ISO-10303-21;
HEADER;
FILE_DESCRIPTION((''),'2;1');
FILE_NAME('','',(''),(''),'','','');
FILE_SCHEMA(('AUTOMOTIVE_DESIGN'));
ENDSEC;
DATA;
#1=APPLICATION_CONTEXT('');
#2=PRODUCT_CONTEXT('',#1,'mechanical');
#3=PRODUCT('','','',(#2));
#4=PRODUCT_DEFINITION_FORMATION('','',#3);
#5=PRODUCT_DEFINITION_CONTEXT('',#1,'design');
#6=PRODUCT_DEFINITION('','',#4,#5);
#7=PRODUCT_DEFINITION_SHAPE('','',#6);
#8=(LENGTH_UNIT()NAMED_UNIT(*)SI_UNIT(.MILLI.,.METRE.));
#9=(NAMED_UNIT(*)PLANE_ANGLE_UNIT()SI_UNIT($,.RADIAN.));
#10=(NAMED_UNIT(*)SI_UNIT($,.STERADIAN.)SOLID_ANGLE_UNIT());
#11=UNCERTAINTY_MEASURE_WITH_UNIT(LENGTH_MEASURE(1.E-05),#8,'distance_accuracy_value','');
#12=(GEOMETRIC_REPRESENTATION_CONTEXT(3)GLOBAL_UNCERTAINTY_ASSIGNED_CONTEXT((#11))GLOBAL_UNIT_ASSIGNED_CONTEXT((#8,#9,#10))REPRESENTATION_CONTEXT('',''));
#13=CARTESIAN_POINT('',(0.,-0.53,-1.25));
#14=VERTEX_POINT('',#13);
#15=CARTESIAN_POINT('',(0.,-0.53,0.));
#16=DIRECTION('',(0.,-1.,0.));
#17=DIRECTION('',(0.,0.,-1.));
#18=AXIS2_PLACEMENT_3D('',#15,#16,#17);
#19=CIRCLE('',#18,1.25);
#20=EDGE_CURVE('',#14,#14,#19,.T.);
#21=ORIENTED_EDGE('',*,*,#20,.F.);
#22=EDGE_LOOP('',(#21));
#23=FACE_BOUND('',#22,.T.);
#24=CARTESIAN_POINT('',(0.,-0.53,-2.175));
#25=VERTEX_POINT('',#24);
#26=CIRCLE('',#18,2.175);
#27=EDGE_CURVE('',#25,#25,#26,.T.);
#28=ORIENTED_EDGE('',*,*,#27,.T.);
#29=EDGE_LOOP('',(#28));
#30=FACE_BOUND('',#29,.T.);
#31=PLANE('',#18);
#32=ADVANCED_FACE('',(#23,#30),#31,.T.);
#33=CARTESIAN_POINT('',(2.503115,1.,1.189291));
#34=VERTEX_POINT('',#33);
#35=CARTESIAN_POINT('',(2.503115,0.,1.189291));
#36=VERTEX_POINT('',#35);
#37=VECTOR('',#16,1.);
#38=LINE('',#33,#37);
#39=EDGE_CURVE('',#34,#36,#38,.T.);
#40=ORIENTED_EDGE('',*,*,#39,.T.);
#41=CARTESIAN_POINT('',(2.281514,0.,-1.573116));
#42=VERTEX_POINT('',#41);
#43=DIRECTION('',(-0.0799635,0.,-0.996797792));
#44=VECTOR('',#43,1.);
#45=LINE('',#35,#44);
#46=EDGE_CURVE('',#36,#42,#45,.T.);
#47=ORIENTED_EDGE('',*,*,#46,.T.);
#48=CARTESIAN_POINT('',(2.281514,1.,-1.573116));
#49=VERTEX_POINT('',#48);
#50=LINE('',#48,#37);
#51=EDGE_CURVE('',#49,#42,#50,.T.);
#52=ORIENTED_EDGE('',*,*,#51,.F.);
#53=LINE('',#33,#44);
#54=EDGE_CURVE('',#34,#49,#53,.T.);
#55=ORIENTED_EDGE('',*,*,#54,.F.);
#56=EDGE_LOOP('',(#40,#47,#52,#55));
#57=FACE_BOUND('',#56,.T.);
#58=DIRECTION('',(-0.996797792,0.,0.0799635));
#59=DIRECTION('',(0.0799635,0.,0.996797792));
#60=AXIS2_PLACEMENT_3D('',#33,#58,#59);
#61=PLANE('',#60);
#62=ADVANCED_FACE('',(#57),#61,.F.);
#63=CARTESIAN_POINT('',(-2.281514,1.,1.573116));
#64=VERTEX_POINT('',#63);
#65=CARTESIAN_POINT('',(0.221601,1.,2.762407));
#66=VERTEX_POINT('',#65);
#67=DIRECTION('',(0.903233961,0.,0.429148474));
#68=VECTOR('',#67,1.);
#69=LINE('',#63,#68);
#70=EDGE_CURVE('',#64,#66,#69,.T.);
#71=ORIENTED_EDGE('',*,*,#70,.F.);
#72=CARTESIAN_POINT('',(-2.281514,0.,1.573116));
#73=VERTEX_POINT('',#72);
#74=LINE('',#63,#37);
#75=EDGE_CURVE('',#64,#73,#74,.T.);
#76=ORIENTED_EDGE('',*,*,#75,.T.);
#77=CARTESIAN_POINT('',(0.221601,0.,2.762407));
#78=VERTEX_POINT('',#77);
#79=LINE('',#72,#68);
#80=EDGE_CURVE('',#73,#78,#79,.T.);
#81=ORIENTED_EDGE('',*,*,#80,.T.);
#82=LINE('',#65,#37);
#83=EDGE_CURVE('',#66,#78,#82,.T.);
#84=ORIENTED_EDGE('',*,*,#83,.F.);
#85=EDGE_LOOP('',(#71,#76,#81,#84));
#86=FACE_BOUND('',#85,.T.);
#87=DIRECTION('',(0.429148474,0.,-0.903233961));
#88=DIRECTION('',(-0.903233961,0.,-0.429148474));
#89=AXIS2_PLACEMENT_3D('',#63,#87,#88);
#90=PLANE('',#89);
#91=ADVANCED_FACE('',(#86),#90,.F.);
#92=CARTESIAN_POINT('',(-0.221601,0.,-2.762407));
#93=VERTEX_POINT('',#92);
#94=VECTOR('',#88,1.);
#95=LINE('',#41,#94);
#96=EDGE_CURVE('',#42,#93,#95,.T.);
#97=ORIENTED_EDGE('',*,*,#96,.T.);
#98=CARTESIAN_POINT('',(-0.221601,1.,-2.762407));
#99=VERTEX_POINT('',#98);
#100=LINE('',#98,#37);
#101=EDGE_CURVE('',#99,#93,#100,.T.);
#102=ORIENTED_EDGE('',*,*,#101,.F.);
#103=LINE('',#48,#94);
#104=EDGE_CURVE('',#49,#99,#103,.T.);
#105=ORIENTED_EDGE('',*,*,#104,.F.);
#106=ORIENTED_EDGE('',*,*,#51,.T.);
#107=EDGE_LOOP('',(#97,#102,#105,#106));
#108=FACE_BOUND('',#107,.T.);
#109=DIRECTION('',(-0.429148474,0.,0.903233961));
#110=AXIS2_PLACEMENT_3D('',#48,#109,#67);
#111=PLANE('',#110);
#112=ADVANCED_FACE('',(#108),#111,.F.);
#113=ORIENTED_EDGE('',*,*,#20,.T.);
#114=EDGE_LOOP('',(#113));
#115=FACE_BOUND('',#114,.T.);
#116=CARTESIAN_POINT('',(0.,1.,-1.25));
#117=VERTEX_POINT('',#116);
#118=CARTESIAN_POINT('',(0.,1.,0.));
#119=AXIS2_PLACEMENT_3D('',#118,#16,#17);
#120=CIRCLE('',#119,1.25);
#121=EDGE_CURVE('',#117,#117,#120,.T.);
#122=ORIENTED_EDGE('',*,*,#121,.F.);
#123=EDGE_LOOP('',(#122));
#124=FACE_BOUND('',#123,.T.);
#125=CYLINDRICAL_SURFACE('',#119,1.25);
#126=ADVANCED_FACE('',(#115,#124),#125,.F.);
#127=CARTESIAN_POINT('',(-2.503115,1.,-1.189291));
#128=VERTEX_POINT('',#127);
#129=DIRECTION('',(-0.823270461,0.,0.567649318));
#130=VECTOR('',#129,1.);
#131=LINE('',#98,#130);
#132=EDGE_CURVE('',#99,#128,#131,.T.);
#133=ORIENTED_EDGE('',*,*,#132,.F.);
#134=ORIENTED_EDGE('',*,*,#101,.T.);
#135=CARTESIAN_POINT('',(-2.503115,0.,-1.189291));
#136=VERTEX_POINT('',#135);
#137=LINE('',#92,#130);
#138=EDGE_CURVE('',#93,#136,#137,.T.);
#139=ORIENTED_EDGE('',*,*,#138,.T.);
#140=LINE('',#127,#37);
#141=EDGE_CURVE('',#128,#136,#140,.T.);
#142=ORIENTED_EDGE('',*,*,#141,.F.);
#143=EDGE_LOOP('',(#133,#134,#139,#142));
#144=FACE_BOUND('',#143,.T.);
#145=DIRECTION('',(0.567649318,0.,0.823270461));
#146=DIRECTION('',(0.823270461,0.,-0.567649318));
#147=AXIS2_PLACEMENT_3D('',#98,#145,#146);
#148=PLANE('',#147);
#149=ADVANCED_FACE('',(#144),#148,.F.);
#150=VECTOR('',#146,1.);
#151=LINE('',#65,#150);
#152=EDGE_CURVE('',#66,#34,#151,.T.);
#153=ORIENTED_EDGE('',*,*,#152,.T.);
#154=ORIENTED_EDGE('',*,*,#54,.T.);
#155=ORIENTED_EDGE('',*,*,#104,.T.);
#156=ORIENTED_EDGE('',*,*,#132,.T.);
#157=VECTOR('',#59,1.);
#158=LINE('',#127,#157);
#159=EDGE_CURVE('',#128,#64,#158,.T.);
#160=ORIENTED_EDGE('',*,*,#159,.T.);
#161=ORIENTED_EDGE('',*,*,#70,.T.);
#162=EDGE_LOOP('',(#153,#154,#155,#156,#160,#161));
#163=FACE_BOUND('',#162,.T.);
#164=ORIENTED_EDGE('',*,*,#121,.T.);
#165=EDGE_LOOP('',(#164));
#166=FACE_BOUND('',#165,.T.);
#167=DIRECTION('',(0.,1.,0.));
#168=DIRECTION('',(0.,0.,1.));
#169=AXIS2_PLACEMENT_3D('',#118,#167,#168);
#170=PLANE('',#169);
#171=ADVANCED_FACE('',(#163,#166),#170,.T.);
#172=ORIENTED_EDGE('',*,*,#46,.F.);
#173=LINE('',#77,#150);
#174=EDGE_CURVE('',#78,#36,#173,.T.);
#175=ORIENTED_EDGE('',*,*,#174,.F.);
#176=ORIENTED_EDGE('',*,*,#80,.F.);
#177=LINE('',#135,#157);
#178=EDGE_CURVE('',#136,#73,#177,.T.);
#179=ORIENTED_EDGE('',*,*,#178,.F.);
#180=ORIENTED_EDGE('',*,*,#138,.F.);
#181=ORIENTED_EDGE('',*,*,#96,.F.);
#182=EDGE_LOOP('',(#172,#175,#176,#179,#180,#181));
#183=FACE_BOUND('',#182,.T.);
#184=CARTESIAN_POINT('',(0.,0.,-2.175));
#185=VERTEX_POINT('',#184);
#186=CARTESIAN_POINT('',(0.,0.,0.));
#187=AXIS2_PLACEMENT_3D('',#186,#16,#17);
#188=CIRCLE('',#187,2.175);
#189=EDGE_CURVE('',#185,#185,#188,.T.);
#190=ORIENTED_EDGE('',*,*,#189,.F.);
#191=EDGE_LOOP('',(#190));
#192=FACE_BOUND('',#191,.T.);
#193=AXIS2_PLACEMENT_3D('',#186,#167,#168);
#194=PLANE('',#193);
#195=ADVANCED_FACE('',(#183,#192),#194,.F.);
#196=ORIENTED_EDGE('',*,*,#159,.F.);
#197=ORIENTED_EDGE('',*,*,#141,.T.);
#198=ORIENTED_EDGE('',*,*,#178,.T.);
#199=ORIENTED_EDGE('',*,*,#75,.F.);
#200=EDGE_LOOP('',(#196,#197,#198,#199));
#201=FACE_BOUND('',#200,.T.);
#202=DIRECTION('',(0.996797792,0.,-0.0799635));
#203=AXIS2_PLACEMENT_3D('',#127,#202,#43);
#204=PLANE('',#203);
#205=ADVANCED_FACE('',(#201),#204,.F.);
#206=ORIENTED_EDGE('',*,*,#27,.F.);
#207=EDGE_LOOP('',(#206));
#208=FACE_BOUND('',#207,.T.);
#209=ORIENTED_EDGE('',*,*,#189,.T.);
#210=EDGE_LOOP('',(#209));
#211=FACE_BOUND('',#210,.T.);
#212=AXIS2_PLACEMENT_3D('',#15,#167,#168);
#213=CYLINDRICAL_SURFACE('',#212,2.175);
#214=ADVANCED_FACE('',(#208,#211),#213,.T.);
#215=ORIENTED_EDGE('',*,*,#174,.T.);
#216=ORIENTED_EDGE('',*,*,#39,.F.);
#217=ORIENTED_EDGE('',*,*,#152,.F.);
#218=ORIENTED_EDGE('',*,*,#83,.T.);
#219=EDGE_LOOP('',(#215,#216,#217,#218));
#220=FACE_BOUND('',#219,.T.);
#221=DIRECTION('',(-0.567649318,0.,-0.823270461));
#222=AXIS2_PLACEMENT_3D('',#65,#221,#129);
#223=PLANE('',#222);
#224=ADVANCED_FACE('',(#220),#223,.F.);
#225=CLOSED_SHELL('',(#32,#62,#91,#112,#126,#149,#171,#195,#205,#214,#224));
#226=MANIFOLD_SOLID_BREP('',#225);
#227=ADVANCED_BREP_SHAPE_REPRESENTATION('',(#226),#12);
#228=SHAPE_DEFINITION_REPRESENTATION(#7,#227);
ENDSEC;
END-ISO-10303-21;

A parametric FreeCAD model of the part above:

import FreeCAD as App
import Part
import Sketcher

V = App.Vector
Q = App.Units.Quantity

doc = App.newDocument("Part")
body = doc.addObject("PartDesign::Body", "Body")

# Sketch on XZ plane
sketch1 = doc.addObject("Sketcher::SketchObject", "Sketch")
body.addObject(sketch1)
sketch1.AttachmentSupport = (doc.XZ_Plane, [""])
sketch1.MapMode = "FlatFace"
sketch1.addGeometry([
    Part.LineSegment(V(2.5, 1.2, 0), V(2.3, -1.6, 0)),  # 0
    Part.LineSegment(V(2.3, -1.6, 0), V(-0.2, -2.8, 0)),  # 1
    Part.LineSegment(V(-0.2, -2.8, 0), V(-2.5, -1.2, 0)),  # 2
    Part.LineSegment(V(-2.5, -1.2, 0), V(-2.3, 1.6, 0)),  # 3
    Part.LineSegment(V(-2.3, 1.6, 0), V(0.2, 2.8, 0)),  # 4
    Part.LineSegment(V(0.2, 2.8, 0), V(2.5, 1.2, 0)),  # 5
], False)
sketch1.addConstraint([
    Sketcher.Constraint("Coincident", 0, 2, 1, 1),
    Sketcher.Constraint("Coincident", 1, 2, 2, 1),
    Sketcher.Constraint("Coincident", 2, 2, 3, 1),
    Sketcher.Constraint("Coincident", 3, 2, 4, 1),
    Sketcher.Constraint("Coincident", 4, 2, 5, 1),
    Sketcher.Constraint("Coincident", 5, 2, 0, 1),
    Sketcher.Constraint("Symmetric", 0, 2, 3, 2, -1, 1),
    Sketcher.Constraint("Symmetric", 1, 2, 4, 2, -1, 1),
    Sketcher.Constraint("Symmetric", 2, 2, 5, 2, -1, 1),
    Sketcher.Constraint("Equal", 0, 1),
    Sketcher.Constraint("Equal", 1, 2),
    Sketcher.Constraint("DistanceX", 1, 2, -1, 1, Q("0.221601 mm")),
    Sketcher.Constraint("DistanceX", 2, 2, 3, 2, Q("0.221601 mm")),
    Sketcher.Constraint("DistanceY", 2, 2, 4, 2, Q("3.951698 mm")),
    Sketcher.Constraint("Distance", 0, Q("2.771281 mm")),
])
pad1 = doc.addObject("PartDesign::Pad", "Pad")
body.addObject(pad1)
pad1.Profile = sketch1
pad1.Length = 1
pad1.Reversed = True

# Sketch on XZ plane
sketch2 = doc.addObject("Sketcher::SketchObject", "Sketch001")
body.addObject(sketch2)
sketch2.AttachmentSupport = (doc.XZ_Plane, [""])
sketch2.MapMode = "FlatFace"
sketch2.addGeometry(Part.Circle(V(0, 0, 0), V(0, 0, 1), 2.2), False)
sketch2.addConstraint([
    Sketcher.Constraint("Coincident", 0, 3, -1, 1),
    Sketcher.Constraint("Diameter", 0, Q("4.35 mm")),
])
pad2 = doc.addObject("PartDesign::Pad", "Pad001")
body.addObject(pad2)
pad2.Profile = sketch2
pad2.Length = 0.53

# Sketch on XZ plane
sketch3 = doc.addObject("Sketcher::SketchObject", "Sketch002")
body.addObject(sketch3)
sketch3.AttachmentSupport = (doc.XZ_Plane, [""])
sketch3.MapMode = "FlatFace"
sketch3.AttachmentOffset = App.Placement(V(0, 0, 0.53), App.Rotation())
sketch3.addGeometry(Part.Circle(V(0, 0, 0), V(0, 0, 1), 1.2), False)
sketch3.addConstraint([
    Sketcher.Constraint("Coincident", 0, 3, -1, 1),
    Sketcher.Constraint("Diameter", 0, Q("2.5 mm")),
])
pocket1 = doc.addObject("PartDesign::Pocket", "Pocket")
body.addObject(pocket1)
pocket1.Profile = sketch3
pocket1.Type = "ThroughAll"

doc.recompute()
